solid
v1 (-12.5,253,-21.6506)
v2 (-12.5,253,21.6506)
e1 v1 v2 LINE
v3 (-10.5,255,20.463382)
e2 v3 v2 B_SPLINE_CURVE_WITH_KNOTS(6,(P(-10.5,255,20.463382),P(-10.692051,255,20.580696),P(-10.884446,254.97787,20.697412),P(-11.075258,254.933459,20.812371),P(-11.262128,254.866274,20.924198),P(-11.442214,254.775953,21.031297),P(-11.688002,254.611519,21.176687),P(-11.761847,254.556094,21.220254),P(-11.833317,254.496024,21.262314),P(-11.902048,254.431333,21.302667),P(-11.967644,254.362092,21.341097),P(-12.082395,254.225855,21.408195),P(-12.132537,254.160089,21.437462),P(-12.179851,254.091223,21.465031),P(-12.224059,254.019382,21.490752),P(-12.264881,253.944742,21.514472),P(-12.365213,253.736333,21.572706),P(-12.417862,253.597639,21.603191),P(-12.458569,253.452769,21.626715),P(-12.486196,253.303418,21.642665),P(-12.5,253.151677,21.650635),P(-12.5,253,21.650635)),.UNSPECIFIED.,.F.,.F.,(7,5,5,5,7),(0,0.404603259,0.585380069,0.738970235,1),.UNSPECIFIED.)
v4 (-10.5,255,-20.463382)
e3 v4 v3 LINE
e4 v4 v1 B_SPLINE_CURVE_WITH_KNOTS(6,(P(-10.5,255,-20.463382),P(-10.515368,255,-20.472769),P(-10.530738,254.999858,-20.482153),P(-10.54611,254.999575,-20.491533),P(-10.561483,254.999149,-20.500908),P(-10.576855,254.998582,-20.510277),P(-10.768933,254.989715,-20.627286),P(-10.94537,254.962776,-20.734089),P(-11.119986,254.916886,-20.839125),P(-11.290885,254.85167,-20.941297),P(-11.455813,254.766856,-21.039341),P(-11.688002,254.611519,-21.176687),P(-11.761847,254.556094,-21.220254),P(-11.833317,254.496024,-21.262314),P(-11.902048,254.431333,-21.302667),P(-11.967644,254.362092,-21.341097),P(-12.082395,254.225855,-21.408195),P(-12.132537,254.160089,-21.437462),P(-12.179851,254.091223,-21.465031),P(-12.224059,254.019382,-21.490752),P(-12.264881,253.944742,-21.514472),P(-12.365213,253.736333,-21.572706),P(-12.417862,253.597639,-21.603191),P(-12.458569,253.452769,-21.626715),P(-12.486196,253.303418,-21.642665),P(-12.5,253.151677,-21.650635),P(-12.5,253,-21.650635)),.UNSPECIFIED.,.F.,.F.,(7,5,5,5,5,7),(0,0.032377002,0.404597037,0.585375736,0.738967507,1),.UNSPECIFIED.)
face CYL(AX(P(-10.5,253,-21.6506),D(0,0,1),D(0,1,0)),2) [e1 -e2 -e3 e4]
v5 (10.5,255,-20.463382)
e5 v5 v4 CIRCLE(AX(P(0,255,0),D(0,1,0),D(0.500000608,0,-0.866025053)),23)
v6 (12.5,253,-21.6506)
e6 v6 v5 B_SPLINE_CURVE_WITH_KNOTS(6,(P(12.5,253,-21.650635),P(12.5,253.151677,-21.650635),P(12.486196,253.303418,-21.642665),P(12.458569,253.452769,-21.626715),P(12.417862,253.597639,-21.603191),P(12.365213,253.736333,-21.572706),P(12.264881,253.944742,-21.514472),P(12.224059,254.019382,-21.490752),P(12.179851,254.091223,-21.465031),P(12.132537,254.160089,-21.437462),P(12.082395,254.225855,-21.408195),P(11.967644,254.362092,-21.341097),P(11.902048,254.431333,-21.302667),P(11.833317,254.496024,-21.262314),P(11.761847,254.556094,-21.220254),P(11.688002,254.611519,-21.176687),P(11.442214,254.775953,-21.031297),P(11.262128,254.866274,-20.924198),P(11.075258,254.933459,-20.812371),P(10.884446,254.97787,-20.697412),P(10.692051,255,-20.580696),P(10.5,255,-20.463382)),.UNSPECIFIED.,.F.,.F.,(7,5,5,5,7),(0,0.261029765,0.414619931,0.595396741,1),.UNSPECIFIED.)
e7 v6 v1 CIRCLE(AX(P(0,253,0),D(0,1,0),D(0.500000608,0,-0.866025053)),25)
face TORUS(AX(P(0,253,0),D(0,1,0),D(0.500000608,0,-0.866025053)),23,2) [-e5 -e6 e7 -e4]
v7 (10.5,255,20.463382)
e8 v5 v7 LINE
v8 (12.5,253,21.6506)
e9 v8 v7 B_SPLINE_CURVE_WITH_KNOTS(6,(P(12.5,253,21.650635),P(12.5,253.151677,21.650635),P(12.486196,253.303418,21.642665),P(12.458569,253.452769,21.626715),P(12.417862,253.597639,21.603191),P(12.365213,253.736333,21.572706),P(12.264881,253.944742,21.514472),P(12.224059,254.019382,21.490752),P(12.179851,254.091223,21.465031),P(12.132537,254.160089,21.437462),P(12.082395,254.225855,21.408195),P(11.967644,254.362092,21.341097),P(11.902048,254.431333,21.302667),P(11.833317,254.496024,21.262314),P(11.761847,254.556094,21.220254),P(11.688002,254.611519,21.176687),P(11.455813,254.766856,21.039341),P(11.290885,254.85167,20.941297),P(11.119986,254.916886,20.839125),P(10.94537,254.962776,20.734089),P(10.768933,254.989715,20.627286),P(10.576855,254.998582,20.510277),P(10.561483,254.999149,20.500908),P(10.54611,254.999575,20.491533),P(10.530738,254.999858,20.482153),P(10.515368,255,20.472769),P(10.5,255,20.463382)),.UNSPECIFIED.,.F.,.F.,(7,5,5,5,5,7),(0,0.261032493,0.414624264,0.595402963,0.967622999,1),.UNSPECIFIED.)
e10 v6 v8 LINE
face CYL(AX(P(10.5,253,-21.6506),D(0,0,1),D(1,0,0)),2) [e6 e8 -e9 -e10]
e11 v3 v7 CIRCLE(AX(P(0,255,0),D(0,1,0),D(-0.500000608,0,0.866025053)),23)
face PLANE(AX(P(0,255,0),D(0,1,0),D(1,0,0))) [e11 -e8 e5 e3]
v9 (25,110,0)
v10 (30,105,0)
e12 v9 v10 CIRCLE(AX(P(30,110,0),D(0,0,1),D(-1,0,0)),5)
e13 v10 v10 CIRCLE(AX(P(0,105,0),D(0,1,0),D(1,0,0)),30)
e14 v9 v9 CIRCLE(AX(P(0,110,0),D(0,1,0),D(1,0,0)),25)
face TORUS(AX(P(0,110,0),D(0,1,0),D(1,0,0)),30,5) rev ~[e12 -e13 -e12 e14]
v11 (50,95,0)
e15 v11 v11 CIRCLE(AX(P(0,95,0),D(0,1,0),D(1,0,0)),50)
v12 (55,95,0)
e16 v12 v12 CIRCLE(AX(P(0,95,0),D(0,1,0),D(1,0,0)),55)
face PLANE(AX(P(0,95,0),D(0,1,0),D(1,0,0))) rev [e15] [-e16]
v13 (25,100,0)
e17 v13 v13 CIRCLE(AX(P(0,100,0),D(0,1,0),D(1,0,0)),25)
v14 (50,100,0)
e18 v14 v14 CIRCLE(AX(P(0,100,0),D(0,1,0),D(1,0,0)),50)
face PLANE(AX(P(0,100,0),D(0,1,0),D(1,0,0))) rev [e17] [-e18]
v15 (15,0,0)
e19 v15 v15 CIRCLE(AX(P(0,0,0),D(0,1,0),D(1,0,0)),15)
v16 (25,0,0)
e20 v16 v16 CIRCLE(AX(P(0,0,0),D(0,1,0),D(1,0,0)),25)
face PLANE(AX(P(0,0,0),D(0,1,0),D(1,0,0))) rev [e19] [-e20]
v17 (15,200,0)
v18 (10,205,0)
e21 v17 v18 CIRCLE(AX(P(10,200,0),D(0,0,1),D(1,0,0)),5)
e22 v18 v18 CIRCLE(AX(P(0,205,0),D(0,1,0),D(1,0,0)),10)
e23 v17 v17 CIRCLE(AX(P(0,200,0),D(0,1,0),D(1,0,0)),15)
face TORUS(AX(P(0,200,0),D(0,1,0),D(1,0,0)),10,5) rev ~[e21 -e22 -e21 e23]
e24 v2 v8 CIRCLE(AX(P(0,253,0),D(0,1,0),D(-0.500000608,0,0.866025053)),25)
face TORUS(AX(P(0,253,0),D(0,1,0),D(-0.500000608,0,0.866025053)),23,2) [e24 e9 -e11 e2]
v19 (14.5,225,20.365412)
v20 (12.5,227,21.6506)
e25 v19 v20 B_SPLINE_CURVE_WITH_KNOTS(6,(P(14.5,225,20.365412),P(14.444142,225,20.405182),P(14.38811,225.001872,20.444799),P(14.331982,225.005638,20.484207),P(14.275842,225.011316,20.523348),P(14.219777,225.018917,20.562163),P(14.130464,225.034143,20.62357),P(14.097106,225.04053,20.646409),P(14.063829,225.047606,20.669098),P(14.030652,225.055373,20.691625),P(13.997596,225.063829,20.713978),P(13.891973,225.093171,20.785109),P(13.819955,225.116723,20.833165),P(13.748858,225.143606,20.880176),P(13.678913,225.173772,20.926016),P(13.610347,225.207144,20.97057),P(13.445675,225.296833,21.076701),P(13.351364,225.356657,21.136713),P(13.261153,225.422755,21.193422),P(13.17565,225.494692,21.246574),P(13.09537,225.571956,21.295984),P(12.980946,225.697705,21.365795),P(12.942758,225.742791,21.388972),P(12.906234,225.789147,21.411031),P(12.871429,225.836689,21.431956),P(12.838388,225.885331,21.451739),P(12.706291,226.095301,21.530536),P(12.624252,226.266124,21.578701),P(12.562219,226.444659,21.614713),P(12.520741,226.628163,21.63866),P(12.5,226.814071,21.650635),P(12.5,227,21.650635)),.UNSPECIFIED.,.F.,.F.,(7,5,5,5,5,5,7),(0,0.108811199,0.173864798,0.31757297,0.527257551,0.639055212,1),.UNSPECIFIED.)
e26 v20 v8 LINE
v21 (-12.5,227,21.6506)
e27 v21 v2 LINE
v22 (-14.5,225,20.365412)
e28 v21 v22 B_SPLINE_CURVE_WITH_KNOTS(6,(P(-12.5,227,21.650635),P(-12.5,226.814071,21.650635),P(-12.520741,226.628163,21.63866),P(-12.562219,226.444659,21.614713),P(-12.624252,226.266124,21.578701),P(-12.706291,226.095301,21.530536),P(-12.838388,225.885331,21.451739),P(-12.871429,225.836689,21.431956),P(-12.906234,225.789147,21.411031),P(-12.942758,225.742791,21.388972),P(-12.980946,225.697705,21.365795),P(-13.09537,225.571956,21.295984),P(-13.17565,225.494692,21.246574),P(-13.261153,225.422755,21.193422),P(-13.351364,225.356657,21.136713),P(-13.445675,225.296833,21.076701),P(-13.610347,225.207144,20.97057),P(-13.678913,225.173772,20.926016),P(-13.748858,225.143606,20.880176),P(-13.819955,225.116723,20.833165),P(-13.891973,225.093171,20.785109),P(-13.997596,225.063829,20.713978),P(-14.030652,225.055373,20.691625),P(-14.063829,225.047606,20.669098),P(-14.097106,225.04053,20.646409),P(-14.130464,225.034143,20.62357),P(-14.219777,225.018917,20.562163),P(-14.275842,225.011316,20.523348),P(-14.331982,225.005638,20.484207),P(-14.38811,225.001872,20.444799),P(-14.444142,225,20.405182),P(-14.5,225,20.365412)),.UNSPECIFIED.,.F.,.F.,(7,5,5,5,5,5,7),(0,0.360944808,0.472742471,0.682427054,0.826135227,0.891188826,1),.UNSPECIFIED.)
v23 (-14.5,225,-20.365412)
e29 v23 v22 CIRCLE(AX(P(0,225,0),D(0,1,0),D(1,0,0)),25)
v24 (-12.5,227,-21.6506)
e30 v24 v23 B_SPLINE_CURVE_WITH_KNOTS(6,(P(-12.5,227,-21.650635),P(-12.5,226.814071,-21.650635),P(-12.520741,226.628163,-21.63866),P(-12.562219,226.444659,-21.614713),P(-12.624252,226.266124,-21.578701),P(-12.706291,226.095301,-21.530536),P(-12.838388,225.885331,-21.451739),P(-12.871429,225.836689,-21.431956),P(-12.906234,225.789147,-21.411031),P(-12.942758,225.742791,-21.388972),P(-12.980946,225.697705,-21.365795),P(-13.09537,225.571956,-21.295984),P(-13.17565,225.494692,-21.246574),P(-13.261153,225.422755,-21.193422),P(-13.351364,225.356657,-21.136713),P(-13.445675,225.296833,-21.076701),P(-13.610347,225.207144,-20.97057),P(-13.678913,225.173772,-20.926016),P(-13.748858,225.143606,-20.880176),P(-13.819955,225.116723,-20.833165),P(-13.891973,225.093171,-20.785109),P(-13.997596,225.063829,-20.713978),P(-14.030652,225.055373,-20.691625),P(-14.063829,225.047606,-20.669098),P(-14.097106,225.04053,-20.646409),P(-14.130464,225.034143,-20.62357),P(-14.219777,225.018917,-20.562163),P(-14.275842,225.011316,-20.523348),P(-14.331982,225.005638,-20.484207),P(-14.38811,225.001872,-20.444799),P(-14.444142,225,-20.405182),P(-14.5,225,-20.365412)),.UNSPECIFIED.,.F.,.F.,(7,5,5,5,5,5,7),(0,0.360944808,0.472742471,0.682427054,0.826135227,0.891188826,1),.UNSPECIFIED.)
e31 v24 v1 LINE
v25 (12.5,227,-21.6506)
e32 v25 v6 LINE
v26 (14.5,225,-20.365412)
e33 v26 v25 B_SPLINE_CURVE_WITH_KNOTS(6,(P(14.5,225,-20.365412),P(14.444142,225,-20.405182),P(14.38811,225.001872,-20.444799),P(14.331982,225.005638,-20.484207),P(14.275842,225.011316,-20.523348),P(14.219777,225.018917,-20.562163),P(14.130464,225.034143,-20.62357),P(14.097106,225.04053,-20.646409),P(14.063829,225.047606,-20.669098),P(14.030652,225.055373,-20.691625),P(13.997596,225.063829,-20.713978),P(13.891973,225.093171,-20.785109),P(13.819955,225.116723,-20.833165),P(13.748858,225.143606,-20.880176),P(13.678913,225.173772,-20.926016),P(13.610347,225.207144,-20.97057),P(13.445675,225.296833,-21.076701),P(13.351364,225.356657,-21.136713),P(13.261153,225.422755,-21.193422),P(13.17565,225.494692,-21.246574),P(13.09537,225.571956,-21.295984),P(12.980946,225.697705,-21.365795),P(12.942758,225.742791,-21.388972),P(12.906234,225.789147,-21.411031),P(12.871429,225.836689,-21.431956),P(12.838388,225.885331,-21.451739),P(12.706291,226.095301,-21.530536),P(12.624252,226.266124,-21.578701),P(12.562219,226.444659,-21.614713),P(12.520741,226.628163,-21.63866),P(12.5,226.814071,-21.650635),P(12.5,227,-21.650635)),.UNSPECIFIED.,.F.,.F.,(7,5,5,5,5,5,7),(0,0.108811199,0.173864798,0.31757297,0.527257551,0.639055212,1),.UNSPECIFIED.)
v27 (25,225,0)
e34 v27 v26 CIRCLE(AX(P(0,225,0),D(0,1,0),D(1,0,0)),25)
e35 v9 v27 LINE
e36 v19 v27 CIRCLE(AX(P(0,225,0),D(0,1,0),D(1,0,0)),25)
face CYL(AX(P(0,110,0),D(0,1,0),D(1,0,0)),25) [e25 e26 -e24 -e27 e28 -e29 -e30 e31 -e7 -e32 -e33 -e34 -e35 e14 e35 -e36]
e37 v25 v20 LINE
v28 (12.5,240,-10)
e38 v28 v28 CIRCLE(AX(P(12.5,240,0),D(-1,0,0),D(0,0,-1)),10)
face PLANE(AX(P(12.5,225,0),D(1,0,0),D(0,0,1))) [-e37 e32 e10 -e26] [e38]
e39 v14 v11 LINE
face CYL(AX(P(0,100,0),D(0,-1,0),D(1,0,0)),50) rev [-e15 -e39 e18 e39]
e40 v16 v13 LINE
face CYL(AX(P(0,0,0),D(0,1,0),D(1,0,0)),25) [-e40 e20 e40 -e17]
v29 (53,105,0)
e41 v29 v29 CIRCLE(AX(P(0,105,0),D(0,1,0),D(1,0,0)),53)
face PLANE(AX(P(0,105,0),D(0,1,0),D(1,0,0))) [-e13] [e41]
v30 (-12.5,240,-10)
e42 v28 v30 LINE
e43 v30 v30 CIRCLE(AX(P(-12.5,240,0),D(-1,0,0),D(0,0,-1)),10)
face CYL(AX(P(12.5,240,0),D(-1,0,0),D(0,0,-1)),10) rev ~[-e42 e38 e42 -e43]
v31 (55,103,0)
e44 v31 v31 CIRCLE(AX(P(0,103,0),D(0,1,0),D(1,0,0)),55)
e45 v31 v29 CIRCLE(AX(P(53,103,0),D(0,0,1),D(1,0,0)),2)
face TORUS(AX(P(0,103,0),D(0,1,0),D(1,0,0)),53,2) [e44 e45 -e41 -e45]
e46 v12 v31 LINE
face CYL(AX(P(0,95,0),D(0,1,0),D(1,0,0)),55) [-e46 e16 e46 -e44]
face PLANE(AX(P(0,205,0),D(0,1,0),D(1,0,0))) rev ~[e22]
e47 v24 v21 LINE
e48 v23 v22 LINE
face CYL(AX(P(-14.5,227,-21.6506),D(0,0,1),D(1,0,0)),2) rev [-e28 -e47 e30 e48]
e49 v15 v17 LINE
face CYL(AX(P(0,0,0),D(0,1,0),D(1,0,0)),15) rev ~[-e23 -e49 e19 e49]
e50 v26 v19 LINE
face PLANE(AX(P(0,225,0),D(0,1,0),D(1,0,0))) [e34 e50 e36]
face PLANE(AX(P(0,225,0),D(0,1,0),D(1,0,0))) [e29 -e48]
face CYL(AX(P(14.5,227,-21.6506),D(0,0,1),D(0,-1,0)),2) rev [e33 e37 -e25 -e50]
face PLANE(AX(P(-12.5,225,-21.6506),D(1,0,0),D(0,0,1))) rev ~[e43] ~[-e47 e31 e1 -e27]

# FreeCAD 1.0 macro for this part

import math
import FreeCAD as App
import Part
import Sketcher

V = App.Vector


def edges_at(feature, points):
    """Names of the edges that pass closest to the given points."""
    edges = feature.Shape.Edges
    near = lambda p: min(range(len(edges)), key=lambda i: edges[i].distToShape(Part.Vertex(*p))[0])
    return sorted({f"Edge{near(p) + 1}" for p in points})

doc = App.newDocument("Part")
body = doc.addObject("PartDesign::Body", "Body")

sketch1 = body.newObject("Sketcher::SketchObject", "Sketch")
sketch1.AttachmentSupport = (doc.getObject("XY_Plane"), [""])
sketch1.MapMode = "FlatFace"
sketch1.addGeometry([
    Part.LineSegment(V(15, 200, 0), V(15, 0, 0)),
    Part.LineSegment(V(15, 0, 0), V(25, 0, 0)),
    Part.LineSegment(V(25, 0, 0), V(25, 100, 0)),
    Part.LineSegment(V(25, 100, 0), V(50, 100, 0)),
    Part.LineSegment(V(50, 100, 0), V(50, 95, 0)),
    Part.LineSegment(V(50, 95, 0), V(55, 95, 0)),
    Part.LineSegment(V(55, 95, 0), V(55, 103, 0)),
    Part.ArcOfCircle(Part.Circle(V(53, 103, 0), V(0, 0, 1), 2), math.radians(0), math.radians(90)),
    Part.LineSegment(V(53, 105, 0), V(30, 105, 0)),
    Part.ArcOfCircle(Part.Circle(V(30, 110, 0), V(0, 0, 1), 5), math.radians(180), math.radians(270)),
    Part.LineSegment(V(25, 110, 0), V(25, 225, 0)),
    Part.LineSegment(V(25, 225, 0), V(0, 225, 0)),
    Part.LineSegment(V(0, 225, 0), V(0, 205, 0)),
    Part.LineSegment(V(0, 205, 0), V(10, 205, 0)),
    Part.ArcOfCircle(Part.Circle(V(10, 200, 0), V(0, 0, 1), 5), math.radians(0), math.radians(90)),
], False)
sketch1.addConstraint([
    Sketcher.Constraint("Coincident", 0, 2, 1, 1),
    Sketcher.Constraint("Coincident", 1, 2, 2, 1),
    Sketcher.Constraint("Coincident", 2, 2, 3, 1),
    Sketcher.Constraint("Coincident", 3, 2, 4, 1),
    Sketcher.Constraint("Coincident", 4, 2, 5, 1),
    Sketcher.Constraint("Coincident", 5, 2, 6, 1),
    Sketcher.Constraint("Tangent", 6, 2, 7, 1),
    Sketcher.Constraint("Tangent", 7, 2, 8, 1),
    Sketcher.Constraint("Tangent", 8, 2, 9, 2),
    Sketcher.Constraint("Tangent", 9, 1, 10, 1),
    Sketcher.Constraint("Coincident", 10, 2, 11, 1),
    Sketcher.Constraint("Coincident", 11, 2, 12, 1),
    Sketcher.Constraint("Coincident", 12, 2, 13, 1),
    Sketcher.Constraint("Tangent", 13, 2, 14, 2),
    Sketcher.Constraint("Tangent", 14, 1, 0, 1),
    Sketcher.Constraint("Vertical", 0),
    Sketcher.Constraint("Horizontal", 1),
    Sketcher.Constraint("Vertical", 2),
    Sketcher.Constraint("Horizontal", 3),
    Sketcher.Constraint("Vertical", 4),
    Sketcher.Constraint("Horizontal", 5),
    Sketcher.Constraint("Vertical", 6),
    Sketcher.Constraint("Horizontal", 8),
    Sketcher.Constraint("Vertical", 10),
    Sketcher.Constraint("Horizontal", 11),
    Sketcher.Constraint("Vertical", 12),
    Sketcher.Constraint("Horizontal", 13),
    Sketcher.Constraint("Equal", 9, 14),
    Sketcher.Constraint("PointOnObject", 0, 2, -1),
    Sketcher.Constraint("PointOnObject", 11, 2, -2),
    Sketcher.Constraint("Vertical", 2, 2, 9, 1),
    Sketcher.Constraint("Equal", 3, 11),
    Sketcher.Constraint("Equal", 1, 13),
    Sketcher.Constraint("Equal", 5, 4),
    Sketcher.Constraint("Radius", 7, 2.0),
    Sketcher.Constraint("Radius", 9, 5.0),
    Sketcher.Constraint("DistanceX", 1, 1, 1, 2, 10.0),
    Sketcher.Constraint("DistanceX", 5, 1, 5, 2, 5.0),
    Sketcher.Constraint("DistanceY", 2, 1, 2, 2, 100.0),
    Sketcher.Constraint("DistanceY", 12, 2, 12, 1, 20.0),
    Sketcher.Constraint("DistanceY", -1, 1, 10, 2, 225.0),
    Sketcher.Constraint("DistanceY", 2, 2, 9, 3, 10.0),
])
revolution = body.newObject("PartDesign::Revolution", "Revolution")
revolution.Profile = sketch1
revolution.ReferenceAxis = (sketch1, ["V_Axis"])
revolution.Angle = 360

sketch2 = body.newObject("Sketcher::SketchObject", "Sketch001")
sketch2.AttachmentSupport = (doc.getObject("XZ_Plane"), [""])
sketch2.MapMode = "FlatFace"
sketch2.AttachmentOffset = App.Placement(V(0, 0, -225), App.Rotation())
sketch2.addGeometry([
    Part.LineSegment(V(12, 22, 0), V(12, -22, 0)),
    Part.ArcOfCircle(Part.Circle(V(0, 0, 0), V(0, 0, 1), 25), math.radians(-120), math.radians(-60)),
    Part.LineSegment(V(-12, -22, 0), V(-12, 22, 0)),
    Part.ArcOfCircle(Part.Circle(V(0, 0, 0), V(0, 0, 1), 25), math.radians(60), math.radians(120)),
], False)
sketch2.addConstraint([
    Sketcher.Constraint("Coincident", 0, 2, 1, 2),
    Sketcher.Constraint("Coincident", 1, 1, 2, 1),
    Sketcher.Constraint("Coincident", 2, 2, 3, 2),
    Sketcher.Constraint("Coincident", 3, 1, 0, 1),
    Sketcher.Constraint("Vertical", 0),
    Sketcher.Constraint("Vertical", 2),
    Sketcher.Constraint("Coincident", 1, 3, -1, 1),
    Sketcher.Constraint("Coincident", 3, 3, -1, 1),
    Sketcher.Constraint("Equal", 1, 3),
    Sketcher.Constraint("Horizontal", 0, 2, 1, 1),
    Sketcher.Constraint("Radius", 1, 25.0),
    Sketcher.Constraint("DistanceX", -1, 1, 0, 2, 12.5),
])
pad1 = body.newObject("PartDesign::Pad", "Pad")
pad1.Profile = sketch2
pad1.Length = 30
pad1.Reversed = True

sketch3 = body.newObject("Sketcher::SketchObject", "Sketch002")
sketch3.AttachmentSupport = (doc.getObject("YZ_Plane"), [""])
sketch3.MapMode = "FlatFace"
sketch3.AttachmentOffset = App.Placement(V(0, 0, 12.5), App.Rotation())
sketch3.addGeometry(Part.Circle(V(240, 0, 0), V(0, 0, 1), 10), False)
sketch3.addConstraint([
    Sketcher.Constraint("PointOnObject", 0, 3, -1),
    Sketcher.Constraint("Diameter", 0, 20.0),
    Sketcher.Constraint("DistanceX", -1, 1, 0, 3, 240.0),
])
doc.recompute()
hole = body.newObject("PartDesign::Hole", "Hole")
hole.Profile = sketch3
hole.ThreadType = "None"
hole.Diameter = 20
hole.DepthType = "ThroughAll"
doc.recompute()

fillet = body.newObject("PartDesign::Fillet", "Fillet")
fillet.Base = (hole, edges_at(hole, [(-12.5, 225, 0), (12.5, 225, -10.825)]))
fillet.Radius = 2
doc.recompute()

fillet2 = body.newObject("PartDesign::Fillet", "Fillet001")
fillet2.Base = (fillet, edges_at(fillet, [
    (12.5, 255, -10.825),
    (-12.5, 255, 0),
    (0, 255, 25),
    (0, 255, -25),
]))
fillet2.Radius = 2

doc.recompute()
